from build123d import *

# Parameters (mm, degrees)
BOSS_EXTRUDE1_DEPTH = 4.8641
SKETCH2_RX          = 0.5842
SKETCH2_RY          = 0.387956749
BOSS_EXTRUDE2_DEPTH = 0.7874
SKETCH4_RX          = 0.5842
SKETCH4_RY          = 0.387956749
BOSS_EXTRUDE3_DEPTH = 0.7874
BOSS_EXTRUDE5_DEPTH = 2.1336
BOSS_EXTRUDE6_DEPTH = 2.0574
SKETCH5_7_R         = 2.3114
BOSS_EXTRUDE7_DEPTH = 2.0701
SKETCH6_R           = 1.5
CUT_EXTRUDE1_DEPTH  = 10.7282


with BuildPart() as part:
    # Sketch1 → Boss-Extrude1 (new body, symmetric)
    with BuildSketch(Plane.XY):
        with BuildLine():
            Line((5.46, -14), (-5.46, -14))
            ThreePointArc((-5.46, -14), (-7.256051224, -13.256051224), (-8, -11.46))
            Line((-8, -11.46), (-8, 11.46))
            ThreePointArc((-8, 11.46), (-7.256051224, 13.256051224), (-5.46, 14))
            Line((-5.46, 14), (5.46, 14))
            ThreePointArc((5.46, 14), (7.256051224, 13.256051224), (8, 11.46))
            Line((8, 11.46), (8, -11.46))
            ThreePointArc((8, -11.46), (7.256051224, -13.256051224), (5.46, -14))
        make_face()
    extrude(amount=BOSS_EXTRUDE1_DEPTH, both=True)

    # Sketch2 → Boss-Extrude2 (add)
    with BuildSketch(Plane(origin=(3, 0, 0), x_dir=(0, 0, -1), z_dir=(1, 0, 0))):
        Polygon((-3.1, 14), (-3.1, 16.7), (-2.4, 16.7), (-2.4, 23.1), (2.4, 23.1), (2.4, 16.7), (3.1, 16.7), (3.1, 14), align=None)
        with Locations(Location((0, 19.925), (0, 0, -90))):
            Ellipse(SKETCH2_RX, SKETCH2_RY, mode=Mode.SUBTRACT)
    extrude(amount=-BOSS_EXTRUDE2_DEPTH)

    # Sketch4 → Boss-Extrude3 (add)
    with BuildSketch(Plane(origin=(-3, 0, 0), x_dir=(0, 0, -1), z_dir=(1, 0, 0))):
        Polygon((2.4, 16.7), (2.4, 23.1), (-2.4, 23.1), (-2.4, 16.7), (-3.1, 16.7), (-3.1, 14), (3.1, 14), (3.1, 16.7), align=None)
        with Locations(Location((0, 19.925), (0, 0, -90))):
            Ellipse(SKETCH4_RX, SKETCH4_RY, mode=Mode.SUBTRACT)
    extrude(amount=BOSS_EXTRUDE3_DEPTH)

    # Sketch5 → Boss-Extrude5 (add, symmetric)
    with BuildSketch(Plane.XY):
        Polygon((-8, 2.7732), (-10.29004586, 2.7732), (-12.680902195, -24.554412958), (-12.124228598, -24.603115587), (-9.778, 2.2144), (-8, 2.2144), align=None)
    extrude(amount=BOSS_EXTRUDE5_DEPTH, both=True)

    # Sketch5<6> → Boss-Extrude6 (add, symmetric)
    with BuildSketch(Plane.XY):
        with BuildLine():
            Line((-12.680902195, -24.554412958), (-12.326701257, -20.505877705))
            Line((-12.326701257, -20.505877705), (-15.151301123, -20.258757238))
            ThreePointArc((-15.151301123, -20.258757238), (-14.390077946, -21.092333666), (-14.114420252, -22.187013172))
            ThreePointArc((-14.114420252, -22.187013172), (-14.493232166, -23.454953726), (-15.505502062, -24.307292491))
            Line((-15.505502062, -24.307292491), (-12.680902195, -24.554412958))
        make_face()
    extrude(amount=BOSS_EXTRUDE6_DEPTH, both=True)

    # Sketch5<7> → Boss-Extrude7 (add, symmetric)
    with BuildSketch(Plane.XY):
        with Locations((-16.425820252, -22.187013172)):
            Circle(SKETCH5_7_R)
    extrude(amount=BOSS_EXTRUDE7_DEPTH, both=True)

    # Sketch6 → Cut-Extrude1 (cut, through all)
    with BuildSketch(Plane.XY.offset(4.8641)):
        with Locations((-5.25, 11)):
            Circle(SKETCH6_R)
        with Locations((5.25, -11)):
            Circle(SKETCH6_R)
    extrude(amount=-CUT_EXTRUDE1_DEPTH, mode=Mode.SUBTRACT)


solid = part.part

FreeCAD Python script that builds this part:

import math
import FreeCAD as App
import Part
import Sketcher
from FreeCAD import Vector
Q = App.Units.Quantity


def add_polygon(sketch, points):
    """Adds a closed chain of lines whose ends are joined by coincident constraints."""
    first, n = sketch.GeometryCount, len(points)
    for a, b in zip(points, points[1:] + points[:1]):
        sketch.addGeometry(Part.LineSegment(App.Vector(*a, 0), App.Vector(*b, 0)), False)
    for i in range(n):
        sketch.addConstraint(Sketcher.Constraint("Coincident", first + i, 2, first + (i + 1) % n, 1))

doc = App.newDocument("Part")
body = doc.addObject("PartDesign::Body", "Body")

# Sketch on XY plane
sketch1 = body.newObject("Sketcher::SketchObject", "Sketch")
sketch1.AttachmentSupport = (doc.getObject("XY_Plane"), [""])
sketch1.MapMode = "FlatFace"
sketch1.addGeometry(Part.LineSegment(Vector(-5.5, -14, 0), Vector(5.5, -14, 0)), False)
sketch1.addGeometry(Part.ArcOfCircle(Part.Circle(Vector(5.5, -11.5, 0), Vector(0, 0, 1), 2.5), math.radians(-90), math.radians(0)), False)
sketch1.addGeometry(Part.LineSegment(Vector(8, -11.5, 0), Vector(8, 11.5, 0)), False)
sketch1.addGeometry(Part.ArcOfCircle(Part.Circle(Vector(5.5, 11.5, 0), Vector(0, 0, 1), 2.5), math.radians(0), math.radians(90)), False)
sketch1.addGeometry(Part.LineSegment(Vector(5.5, 14, 0), Vector(-5.5, 14, 0)), False)
sketch1.addGeometry(Part.ArcOfCircle(Part.Circle(Vector(-5.5, 11.5, 0), Vector(0, 0, 1), 2.5), math.radians(90), math.radians(180)), False)
sketch1.addGeometry(Part.LineSegment(Vector(-8, 11.5, 0), Vector(-8, -11.5, 0)), False)
sketch1.addGeometry(Part.ArcOfCircle(Part.Circle(Vector(-5.5, -11.5, 0), Vector(0, 0, 1), 2.5), math.radians(-180), math.radians(-90)), False)
sketch1.addConstraint(Sketcher.Constraint("Tangent", 0, 2, 1, 1))
sketch1.addConstraint(Sketcher.Constraint("Tangent", 1, 2, 2, 1))
sketch1.addConstraint(Sketcher.Constraint("Tangent", 2, 2, 3, 1))
sketch1.addConstraint(Sketcher.Constraint("Tangent", 3, 2, 4, 1))
sketch1.addConstraint(Sketcher.Constraint("Tangent", 4, 2, 5, 1))
sketch1.addConstraint(Sketcher.Constraint("Tangent", 5, 2, 6, 1))
sketch1.addConstraint(Sketcher.Constraint("Tangent", 6, 2, 7, 1))
sketch1.addConstraint(Sketcher.Constraint("Tangent", 7, 2, 0, 1))
sketch1.addConstraint(Sketcher.Constraint("Horizontal", 0))
sketch1.addConstraint(Sketcher.Constraint("Vertical", 2))
sketch1.addConstraint(Sketcher.Constraint("Horizontal", 4))
sketch1.addConstraint(Sketcher.Constraint("Vertical", 6))
sketch1.addConstraint(Sketcher.Constraint("Equal", 1, 3))
sketch1.addConstraint(Sketcher.Constraint("Equal", 3, 5))
sketch1.addConstraint(Sketcher.Constraint("Equal", 5, 7))
sketch1.addConstraint(Sketcher.Constraint("Symmetric", 1, 3, 5, 3, -1, 1))
sketch1.addConstraint(Sketcher.Constraint("Radius", 1, Q("0.1 in")))
sketch1.addConstraint(Sketcher.Constraint("DistanceX", 0, 1, 0, 2, Q("10.92 mm")))
sketch1.addConstraint(Sketcher.Constraint("DistanceY", 2, 1, 2, 2, Q("22.92 mm")))
pad1 = body.newObject("PartDesign::Pad", "Pad")
pad1.Profile = sketch1
pad1.Length = Q("0.383 in")
pad1.Midplane = True

# Sketch on YZ plane
sketch2 = body.newObject("Sketcher::SketchObject", "Sketch001")
sketch2.AttachmentSupport = (doc.getObject("YZ_Plane"), [""])
sketch2.MapMode = "FlatFace"
sketch2.AttachmentOffset = App.Placement(Vector(0, 0, 3), App.Rotation())
add_polygon(sketch2, [(16.7, 3.1), (14, 3.1), (14, -3.1), (16.7, -3.1), (16.7, -2.4), (23.1, -2.4), (23.1, 2.4), (16.7, 2.4)])  # lines 0-7
sketch2.addGeometry(Part.Ellipse(Vector(19.3408, 0, 0), Vector(19.925, -0.387957, 0), Vector(19.925, 0, 0)), False)  # 8
sketch2.addConstraint(Sketcher.Constraint("Block", 8))
sketch2.addConstraint(Sketcher.Constraint("Horizontal", 0))
sketch2.addConstraint(Sketcher.Constraint("Vertical", 1))
sketch2.addConstraint(Sketcher.Constraint("Horizontal", 2))
sketch2.addConstraint(Sketcher.Constraint("Vertical", 3))
sketch2.addConstraint(Sketcher.Constraint("Horizontal", 4))
sketch2.addConstraint(Sketcher.Constraint("Vertical", 5))
sketch2.addConstraint(Sketcher.Constraint("Horizontal", 6))
sketch2.addConstraint(Sketcher.Constraint("Vertical", 7))
sketch2.addConstraint(Sketcher.Constraint("Symmetric", 3, 2, 6, 2, -1))
sketch2.addConstraint(Sketcher.Constraint("Equal", 3, 7))
sketch2.addConstraint(Sketcher.Constraint("DistanceX", 0, 2, 0, 1, Q("2.7 mm")))
sketch2.addConstraint(Sketcher.Constraint("DistanceX", 4, 1, 4, 2, Q("6.4 mm")))
sketch2.addConstraint(Sketcher.Constraint("DistanceY", 1, 2, 1, 1, Q("6.2 mm")))
sketch2.addConstraint(Sketcher.Constraint("DistanceY", 3, 1, 3, 2, Q("0.7 mm")))
sketch2.addConstraint(Sketcher.Constraint("DistanceX", -1, 1, 0, 2, Q("14 mm")))
pad2 = body.newObject("PartDesign::Pad", "Pad001")
pad2.Profile = sketch2
pad2.Length = Q("0.031 in")
pad2.Reversed = True

# Sketch on YZ plane
sketch3 = body.newObject("Sketcher::SketchObject", "Sketch002")
sketch3.AttachmentSupport = (doc.getObject("YZ_Plane"), [""])
sketch3.MapMode = "FlatFace"
sketch3.AttachmentOffset = App.Placement(Vector(0, 0, -3), App.Rotation())
add_polygon(sketch3, [(16.7, -2.4), (23.1, -2.4), (23.1, 2.4), (16.7, 2.4), (16.7, 3.1), (14, 3.1), (14, -3.1), (16.7, -3.1)])  # lines 0-7
sketch3.addGeometry(Part.Ellipse(Vector(19.3408, 0, 0), Vector(19.925, -0.387957, 0), Vector(19.925, 0, 0)), False)  # 8
sketch3.addConstraint(Sketcher.Constraint("Block", 8))
sketch3.addConstraint(Sketcher.Constraint("Horizontal", 0))
sketch3.addConstraint(Sketcher.Constraint("Vertical", 1))
sketch3.addConstraint(Sketcher.Constraint("Horizontal", 2))
sketch3.addConstraint(Sketcher.Constraint("Vertical", 3))
sketch3.addConstraint(Sketcher.Constraint("Horizontal", 4))
sketch3.addConstraint(Sketcher.Constraint("Vertical", 5))
sketch3.addConstraint(Sketcher.Constraint("Horizontal", 6))
sketch3.addConstraint(Sketcher.Constraint("Vertical", 7))
sketch3.addConstraint(Sketcher.Constraint("Symmetric", 3, 2, 6, 2, -1))
sketch3.addConstraint(Sketcher.Constraint("Equal", 3, 7))
sketch3.addConstraint(Sketcher.Constraint("DistanceX", 0, 1, 0, 2, Q("6.4 mm")))
sketch3.addConstraint(Sketcher.Constraint("DistanceX", 4, 2, 4, 1, Q("2.7 mm")))
sketch3.addConstraint(Sketcher.Constraint("DistanceY", 1, 1, 1, 2, Q("4.8 mm")))
sketch3.addConstraint(Sketcher.Constraint("DistanceY", 3, 1, 3, 2, Q("0.7 mm")))
sketch3.addConstraint(Sketcher.Constraint("DistanceX", -1, 1, 0, 2, Q("23.1 mm")))
pad3 = body.newObject("PartDesign::Pad", "Pad002")
pad3.Profile = sketch3
pad3.Length = Q("0.031 in")

# Sketch on XY plane
sketch4 = body.newObject("Sketcher::SketchObject", "Sketch003")
sketch4.AttachmentSupport = (doc.getObject("XY_Plane"), [""])
sketch4.MapMode = "FlatFace"
add_polygon(sketch4, [(-8, 2.8), (-10.3, 2.8), (-12.7, -24.6), (-12.1, -24.6), (-9.8, 2.2), (-8, 2.2)])  # lines 0-5
sketch4.addConstraint(Sketcher.Constraint("Horizontal", 0))
sketch4.addConstraint(Sketcher.Constraint("Horizontal", 4))
sketch4.addConstraint(Sketcher.Constraint("Vertical", 5))
sketch4.addConstraint(Sketcher.Constraint("Perpendicular", 1, 2))
sketch4.addConstraint(Sketcher.Constraint("Perpendicular", 2, 3))
sketch4.addConstraint(Sketcher.Constraint("Angle", 1, Q("-95 deg")))
sketch4.addConstraint(Sketcher.Constraint("DistanceX", 4, 1, 4, 2, Q("0.07 in")))
sketch4.addConstraint(Sketcher.Constraint("Distance", 1, Q("1.08 in")))
sketch4.addConstraint(Sketcher.Constraint("DistanceY", 5, 1, 5, 2, Q("0.022 in")))
sketch4.addConstraint(Sketcher.Constraint("Distance", 2, Q("0.022 in")))
sketch4.addConstraint(Sketcher.Constraint("DistanceY", -1, 1, 0, 2, Q("2.7732 mm")))
sketch4.addConstraint(Sketcher.Constraint("DistanceX", 3, 2, -1, 1, Q("9.778 mm")))
pad4 = body.newObject("PartDesign::Pad", "Pad003")
pad4.Profile = sketch4
pad4.Length = Q("0.168 in")
pad4.Midplane = True

# Sketch on XY plane
sketch5 = body.newObject("Sketcher::SketchObject", "Sketch004")
sketch5.AttachmentSupport = (doc.getObject("XY_Plane"), [""])
sketch5.MapMode = "FlatFace"
sketch5.addGeometry(Part.LineSegment(Vector(-12.7, -24.6, 0), Vector(-12.3, -20.5, 0)), False)
sketch5.addGeometry(Part.LineSegment(Vector(-12.3, -20.5, 0), Vector(-15.2, -20.3, 0)), False)
sketch5.addGeometry(Part.ArcOfCircle(Part.Circle(Vector(-16.4, -22.2, 0), Vector(0, 0, 1), 2.3), math.radians(0), math.radians(57)), False)
sketch5.addGeometry(Part.ArcOfCircle(Part.Circle(Vector(-16.4, -22.2, 0), Vector(0, 0, 1), 2.3), math.radians(-67), math.radians(0)), False)
sketch5.addGeometry(Part.LineSegment(Vector(-15.5, -24.3, 0), Vector(-12.7, -24.6, 0)), False)
sketch5.addConstraint(Sketcher.Constraint("Coincident", 0, 2, 1, 1))
sketch5.addConstraint(Sketcher.Constraint("Coincident", 1, 2, 2, 2))
sketch5.addConstraint(Sketcher.Constraint("Tangent", 2, 1, 3, 2))
sketch5.addConstraint(Sketcher.Constraint("Coincident", 3, 1, 4, 1))
sketch5.addConstraint(Sketcher.Constraint("Coincident", 4, 2, 0, 1))
sketch5.addConstraint(Sketcher.Constraint("Equal", 2, 3))
sketch5.addConstraint(Sketcher.Constraint("Perpendicular", 0, 1))
sketch5.addConstraint(Sketcher.Constraint("Parallel", 1, 4))
sketch5.addConstraint(Sketcher.Constraint("Horizontal", 3, 3, 2, 1))
sketch5.addConstraint(Sketcher.Constraint("Equal", 1, 4))
sketch5.addConstraint(Sketcher.Constraint("Angle", 0, Q("85 deg")))
sketch5.addConstraint(Sketcher.Constraint("Radius", 2, Q("0.091 in")))
sketch5.addConstraint(Sketcher.Constraint("Distance", 0, Q("0.16 in")))
sketch5.addConstraint(Sketcher.Constraint("DistanceX", 0, 2, -1, 1, Q("12.326701 mm")))
sketch5.addConstraint(Sketcher.Constraint("DistanceX", 1, 2, -1, 1, Q("15.151301 mm")))
sketch5.addConstraint(Sketcher.Constraint("DistanceY", 2, 3, -1, 1, Q("22.187013 mm")))
pad5 = body.newObject("PartDesign::Pad", "Pad004")
pad5.Profile = sketch5
pad5.Length = Q("0.162 in")
pad5.Midplane = True

# Sketch on XY plane
sketch6 = body.newObject("Sketcher::SketchObject", "Sketch005")
sketch6.AttachmentSupport = (doc.getObject("XY_Plane"), [""])
sketch6.MapMode = "FlatFace"
sketch6.addGeometry(Part.Circle(Vector(-16.4, -22.2, 0), Vector(0, 0, 1), 2.3), False)
sketch6.addConstraint(Sketcher.Constraint("Diameter", 0, Q("0.182 in")))
sketch6.addConstraint(Sketcher.Constraint("DistanceX", 0, 3, -1, 1, Q("16.42582 mm")))
sketch6.addConstraint(Sketcher.Constraint("DistanceY", 0, 3, -1, 1, Q("22.187013 mm")))
pad6 = body.newObject("PartDesign::Pad", "Pad005")
pad6.Profile = sketch6
pad6.Length = Q("0.163 in")
pad6.Midplane = True

# Sketch on XY plane
sketch7 = body.newObject("Sketcher::SketchObject", "Sketch006")
sketch7.AttachmentSupport = (doc.getObject("XY_Plane"), [""])
sketch7.MapMode = "FlatFace"
sketch7.AttachmentOffset = App.Placement(Vector(0, 0, 0.1915 * 25.4), App.Rotation())
sketch7.addGeometry(Part.Circle(Vector(-5.2, 11, 0), Vector(0, 0, 1), 1.5), False)
sketch7.addGeometry(Part.Circle(Vector(5.2, -11, 0), Vector(0, 0, 1), 1.5), False)
sketch7.addConstraint(Sketcher.Constraint("Equal", 0, 1))
sketch7.addConstraint(Sketcher.Constraint("Symmetric", 0, 3, 1, 3, -1, 1))
sketch7.addConstraint(Sketcher.Constraint("Diameter", 0, Q("3 mm")))
sketch7.addConstraint(Sketcher.Constraint("DistanceX", 0, 3, -1, 1, Q("5.25 mm")))
sketch7.addConstraint(Sketcher.Constraint("DistanceY", -1, 1, 0, 3, Q("11 mm")))
pocket1 = body.newObject("PartDesign::Pocket", "Pocket")
pocket1.Profile = sketch7
pocket1.Type = "ThroughAll"

doc.recompute()
